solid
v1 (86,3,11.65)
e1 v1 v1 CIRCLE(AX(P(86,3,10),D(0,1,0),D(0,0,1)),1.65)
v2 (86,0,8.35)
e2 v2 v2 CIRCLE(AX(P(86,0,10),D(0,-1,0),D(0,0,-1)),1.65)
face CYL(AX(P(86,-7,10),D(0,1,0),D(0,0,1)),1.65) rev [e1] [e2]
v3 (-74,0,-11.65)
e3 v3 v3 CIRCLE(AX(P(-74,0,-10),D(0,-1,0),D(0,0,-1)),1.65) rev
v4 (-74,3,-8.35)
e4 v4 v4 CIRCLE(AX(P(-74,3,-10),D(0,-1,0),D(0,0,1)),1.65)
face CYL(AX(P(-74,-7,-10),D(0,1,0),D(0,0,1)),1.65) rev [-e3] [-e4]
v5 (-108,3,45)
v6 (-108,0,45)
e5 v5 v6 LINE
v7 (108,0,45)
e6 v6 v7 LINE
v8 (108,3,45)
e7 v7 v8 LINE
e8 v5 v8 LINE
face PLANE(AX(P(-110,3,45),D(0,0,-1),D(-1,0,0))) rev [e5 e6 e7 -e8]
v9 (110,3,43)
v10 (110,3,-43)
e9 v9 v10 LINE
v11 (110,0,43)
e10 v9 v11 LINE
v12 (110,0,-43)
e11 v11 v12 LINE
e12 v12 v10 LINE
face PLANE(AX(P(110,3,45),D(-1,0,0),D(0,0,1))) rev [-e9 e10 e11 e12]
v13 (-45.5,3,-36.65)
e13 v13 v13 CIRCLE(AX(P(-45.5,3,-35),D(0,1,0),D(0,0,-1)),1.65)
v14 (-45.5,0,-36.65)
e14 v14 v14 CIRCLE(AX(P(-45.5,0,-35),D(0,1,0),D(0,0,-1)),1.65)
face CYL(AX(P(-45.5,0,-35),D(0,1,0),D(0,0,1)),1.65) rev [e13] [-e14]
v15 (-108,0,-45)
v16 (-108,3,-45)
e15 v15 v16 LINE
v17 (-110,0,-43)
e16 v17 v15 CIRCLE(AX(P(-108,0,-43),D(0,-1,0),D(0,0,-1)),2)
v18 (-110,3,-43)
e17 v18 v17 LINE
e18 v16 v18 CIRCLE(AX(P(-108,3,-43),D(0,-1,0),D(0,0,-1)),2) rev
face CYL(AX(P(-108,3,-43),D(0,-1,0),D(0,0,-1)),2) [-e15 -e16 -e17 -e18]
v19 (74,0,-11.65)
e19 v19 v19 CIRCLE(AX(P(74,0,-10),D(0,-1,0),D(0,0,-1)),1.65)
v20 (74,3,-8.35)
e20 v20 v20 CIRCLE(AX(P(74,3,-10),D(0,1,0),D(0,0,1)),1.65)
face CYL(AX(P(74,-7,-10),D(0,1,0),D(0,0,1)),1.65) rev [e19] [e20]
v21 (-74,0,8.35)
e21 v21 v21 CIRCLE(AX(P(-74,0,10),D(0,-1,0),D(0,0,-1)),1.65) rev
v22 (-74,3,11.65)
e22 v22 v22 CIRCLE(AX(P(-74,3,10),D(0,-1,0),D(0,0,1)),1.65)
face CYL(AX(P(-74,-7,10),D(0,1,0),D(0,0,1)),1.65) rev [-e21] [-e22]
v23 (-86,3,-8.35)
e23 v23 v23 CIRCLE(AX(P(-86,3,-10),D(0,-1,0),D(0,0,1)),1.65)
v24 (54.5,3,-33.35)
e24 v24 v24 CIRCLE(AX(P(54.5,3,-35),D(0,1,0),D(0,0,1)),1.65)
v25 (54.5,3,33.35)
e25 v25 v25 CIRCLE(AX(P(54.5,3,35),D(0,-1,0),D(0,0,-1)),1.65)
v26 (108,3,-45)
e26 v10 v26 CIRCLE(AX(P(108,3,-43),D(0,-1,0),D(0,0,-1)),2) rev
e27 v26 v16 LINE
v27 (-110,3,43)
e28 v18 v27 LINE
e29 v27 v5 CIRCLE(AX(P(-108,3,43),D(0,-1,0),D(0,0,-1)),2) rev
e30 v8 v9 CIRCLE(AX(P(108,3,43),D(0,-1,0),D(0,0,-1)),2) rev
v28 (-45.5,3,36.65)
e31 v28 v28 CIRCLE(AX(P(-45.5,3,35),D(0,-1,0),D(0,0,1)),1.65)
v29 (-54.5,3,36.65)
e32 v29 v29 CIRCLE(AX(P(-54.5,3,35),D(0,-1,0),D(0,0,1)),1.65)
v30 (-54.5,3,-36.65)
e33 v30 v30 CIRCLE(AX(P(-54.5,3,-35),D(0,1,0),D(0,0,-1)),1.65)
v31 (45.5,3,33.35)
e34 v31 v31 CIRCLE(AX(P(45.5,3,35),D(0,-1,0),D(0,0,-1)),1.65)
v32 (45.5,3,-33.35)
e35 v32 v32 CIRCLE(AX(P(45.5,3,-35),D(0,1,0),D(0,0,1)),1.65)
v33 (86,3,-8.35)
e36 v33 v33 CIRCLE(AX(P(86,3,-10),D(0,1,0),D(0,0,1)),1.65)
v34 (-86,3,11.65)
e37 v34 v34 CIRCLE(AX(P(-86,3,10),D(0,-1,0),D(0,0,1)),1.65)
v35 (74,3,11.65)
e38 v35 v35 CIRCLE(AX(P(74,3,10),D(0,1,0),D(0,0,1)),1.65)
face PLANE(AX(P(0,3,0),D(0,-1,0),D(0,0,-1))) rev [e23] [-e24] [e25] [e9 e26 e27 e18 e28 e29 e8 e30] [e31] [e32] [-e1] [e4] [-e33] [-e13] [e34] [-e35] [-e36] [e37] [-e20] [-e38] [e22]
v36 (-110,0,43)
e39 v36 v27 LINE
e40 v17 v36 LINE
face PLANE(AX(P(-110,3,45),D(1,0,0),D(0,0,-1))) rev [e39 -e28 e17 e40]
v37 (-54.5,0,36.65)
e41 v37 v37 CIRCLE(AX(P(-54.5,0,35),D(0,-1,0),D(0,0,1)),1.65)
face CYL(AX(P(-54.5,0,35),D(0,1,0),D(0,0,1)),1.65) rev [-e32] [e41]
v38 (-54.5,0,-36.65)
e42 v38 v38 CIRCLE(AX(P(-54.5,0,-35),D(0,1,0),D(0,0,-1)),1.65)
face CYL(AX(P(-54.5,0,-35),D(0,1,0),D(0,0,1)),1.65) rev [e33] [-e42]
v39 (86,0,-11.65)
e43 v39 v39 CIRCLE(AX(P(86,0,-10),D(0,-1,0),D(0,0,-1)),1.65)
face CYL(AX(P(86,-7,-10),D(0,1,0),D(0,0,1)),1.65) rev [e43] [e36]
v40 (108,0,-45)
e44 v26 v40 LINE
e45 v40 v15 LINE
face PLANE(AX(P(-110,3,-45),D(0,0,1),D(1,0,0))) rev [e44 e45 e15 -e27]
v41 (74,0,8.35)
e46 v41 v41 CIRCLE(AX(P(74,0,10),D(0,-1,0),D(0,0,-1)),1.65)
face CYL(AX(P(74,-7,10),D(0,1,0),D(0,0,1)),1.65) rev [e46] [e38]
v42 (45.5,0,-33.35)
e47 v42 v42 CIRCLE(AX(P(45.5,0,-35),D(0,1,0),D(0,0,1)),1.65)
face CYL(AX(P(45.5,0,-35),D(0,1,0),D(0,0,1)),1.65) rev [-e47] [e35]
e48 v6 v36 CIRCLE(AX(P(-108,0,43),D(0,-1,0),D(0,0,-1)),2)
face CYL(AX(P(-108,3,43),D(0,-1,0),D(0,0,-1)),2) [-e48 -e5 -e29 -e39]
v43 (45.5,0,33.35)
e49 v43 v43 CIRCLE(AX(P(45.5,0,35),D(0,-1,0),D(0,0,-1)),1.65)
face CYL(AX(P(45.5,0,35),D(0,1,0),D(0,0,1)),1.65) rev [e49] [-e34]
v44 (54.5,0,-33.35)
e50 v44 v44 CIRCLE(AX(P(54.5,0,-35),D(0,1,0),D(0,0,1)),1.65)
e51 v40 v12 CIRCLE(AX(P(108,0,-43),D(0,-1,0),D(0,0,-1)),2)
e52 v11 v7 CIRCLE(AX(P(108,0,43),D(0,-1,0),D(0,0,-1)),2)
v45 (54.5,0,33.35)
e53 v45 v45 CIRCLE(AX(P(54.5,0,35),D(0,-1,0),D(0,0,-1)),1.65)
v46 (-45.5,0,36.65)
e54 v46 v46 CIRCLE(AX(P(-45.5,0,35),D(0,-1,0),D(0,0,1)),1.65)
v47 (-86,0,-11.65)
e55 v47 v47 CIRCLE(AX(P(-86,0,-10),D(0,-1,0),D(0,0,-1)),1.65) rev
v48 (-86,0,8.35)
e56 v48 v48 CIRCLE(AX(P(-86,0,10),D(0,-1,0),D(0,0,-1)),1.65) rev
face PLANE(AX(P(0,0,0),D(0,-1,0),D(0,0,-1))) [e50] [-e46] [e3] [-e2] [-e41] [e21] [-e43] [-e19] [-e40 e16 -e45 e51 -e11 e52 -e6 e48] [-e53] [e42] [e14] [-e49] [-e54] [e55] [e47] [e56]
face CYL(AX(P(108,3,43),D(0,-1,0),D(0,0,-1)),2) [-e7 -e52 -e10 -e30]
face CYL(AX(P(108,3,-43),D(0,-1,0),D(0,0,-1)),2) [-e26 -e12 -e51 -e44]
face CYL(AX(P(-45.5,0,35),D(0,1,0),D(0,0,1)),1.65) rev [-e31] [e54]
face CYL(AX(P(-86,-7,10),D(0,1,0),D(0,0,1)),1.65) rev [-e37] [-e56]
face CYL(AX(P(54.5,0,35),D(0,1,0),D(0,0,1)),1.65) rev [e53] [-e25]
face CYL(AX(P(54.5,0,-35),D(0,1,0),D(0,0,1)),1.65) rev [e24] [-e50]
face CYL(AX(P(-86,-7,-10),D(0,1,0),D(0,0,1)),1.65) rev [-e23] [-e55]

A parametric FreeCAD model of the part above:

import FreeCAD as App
import Part
import Sketcher


def edges_at(feature, points):
    """Names of the edges that pass closest to the given points."""
    edges = feature.Shape.Edges
    near = lambda p: min(range(len(edges)), key=lambda i: edges[i].distToShape(Part.Vertex(*p))[0])
    return sorted({f"Edge{near(p) + 1}" for p in points})

doc = App.newDocument("Part")
body = doc.addObject("PartDesign::Body", "Body")

# Sketch on XZ plane
sketch1 = body.newObject("Sketcher::SketchObject", "Sketch")
sketch1.AttachmentSupport = (doc.getObject("XZ_Plane"), [""])
sketch1.MapMode = "FlatFace"
sketch1.addGeometry([
    Part.LineSegment(App.Vector(-110, -45, 0), App.Vector(-110, 45, 0)),
    Part.LineSegment(App.Vector(-110, 45, 0), App.Vector(110, 45, 0)),
    Part.LineSegment(App.Vector(110, 45, 0), App.Vector(110, -45, 0)),
    Part.LineSegment(App.Vector(110, -45, 0), App.Vector(-110, -45, 0)),
], False)
sketch1.addConstraint([
    Sketcher.Constraint("Coincident", 0, 2, 1, 1),
    Sketcher.Constraint("Coincident", 1, 2, 2, 1),
    Sketcher.Constraint("Coincident", 2, 2, 3, 1),
    Sketcher.Constraint("Coincident", 3, 2, 0, 1),
    Sketcher.Constraint("Vertical", 0),
    Sketcher.Constraint("Horizontal", 1),
    Sketcher.Constraint("Vertical", 2),
    Sketcher.Constraint("Horizontal", 3),
    Sketcher.Constraint("Symmetric", 0, 2, 2, 2, -1, 1),
    Sketcher.Constraint("DistanceX", 1, 1, 1, 2, 220.0),
    Sketcher.Constraint("DistanceY", 0, 1, 0, 2, 90.0),
])
pad1 = body.newObject("PartDesign::Pad", "Pad")
pad1.Profile = sketch1
pad1.Length = 3
pad1.Reversed = True

# Sketch on XZ plane
sketch2 = body.newObject("Sketcher::SketchObject", "Sketch001")
sketch2.AttachmentSupport = (doc.getObject("XZ_Plane"), [""])
sketch2.MapMode = "FlatFace"
sketch2.AttachmentOffset = App.Placement(App.Vector(0, 0, -3), App.Rotation())
sketch2.addGeometry([
    Part.Circle(App.Vector(54.5, -35, 0), App.Vector(0, 0, 1), 1.65),
    Part.Circle(App.Vector(45.5, -35, 0), App.Vector(0, 0, 1), 1.65),
    Part.Circle(App.Vector(-54.5, -35, 0), App.Vector(0, 0, 1), 1.65),
    Part.Circle(App.Vector(-45.5, -35, 0), App.Vector(0, 0, 1), 1.65),
], False)
sketch2.addConstraint([
    Sketcher.Constraint("Equal", 0, 1),
    Sketcher.Constraint("Equal", 1, 2),
    Sketcher.Constraint("Equal", 2, 3),
    Sketcher.Constraint("Symmetric", 0, 3, 2, 3, -2),
    Sketcher.Constraint("Symmetric", 1, 3, 3, 3, -2),
    Sketcher.Constraint("Horizontal", 0, 3, 1, 3),
    Sketcher.Constraint("Diameter", 0, 3.3),
    Sketcher.Constraint("DistanceY", 0, 3, -1, 1, 35.0),
    Sketcher.Constraint("DistanceX", 1, 3, 0, 3, 9.0),
    Sketcher.Constraint("DistanceX", 2, 3, 1, 3, 100.0),
])
pocket1 = body.newObject("PartDesign::Pocket", "Pocket")
pocket1.Profile = sketch2
pocket1.Length = 3
pocket1.Reversed = True
doc.recompute()

mirrored = body.newObject("PartDesign::Mirrored", "Mirrored")
mirrored.Originals = [pocket1]
mirrored.MirrorPlane = (doc.getObject("XY_Plane"), [""])
body.Tip = mirrored
doc.recompute()

fillet = body.newObject("PartDesign::Fillet", "Fillet")
fillet.Base = (mirrored, edges_at(mirrored, [
    (110, 1.5, 45),
    (-110, 1.5, 45),
    (-110, 1.5, -45),
    (110, 1.5, -45),
]))
fillet.Radius = 2

# Sketch on XZ plane
sketch3 = body.newObject("Sketcher::SketchObject", "Sketch002")
sketch3.AttachmentSupport = (doc.getObject("XZ_Plane"), [""])
sketch3.MapMode = "FlatFace"
sketch3.AttachmentOffset = App.Placement(App.Vector(0, 0, -3), App.Rotation())
sketch3.addGeometry([
    Part.Circle(App.Vector(86, -10, 0), App.Vector(0, 0, 1), 1.65),
    Part.Circle(App.Vector(74, -10, 0), App.Vector(0, 0, 1), 1.65),
    Part.Circle(App.Vector(74, 10, 0), App.Vector(0, 0, 1), 1.65),
    Part.Circle(App.Vector(86, 10, 0), App.Vector(0, 0, 1), 1.65),
], False)
sketch3.addConstraint([
    Sketcher.Constraint("Equal", 0, 1),
    Sketcher.Constraint("Equal", 1, 2),
    Sketcher.Constraint("Equal", 2, 3),
    Sketcher.Constraint("Symmetric", 1, 3, 2, 3, -1),
    Sketcher.Constraint("Symmetric", 0, 3, 3, 3, -1),
    Sketcher.Constraint("Horizontal", 0, 3, 1, 3),
    Sketcher.Constraint("Diameter", 0, 3.3),
    Sketcher.Constraint("DistanceX", -1, 1, 0, 3, 86.0),
    Sketcher.Constraint("DistanceY", 0, 3, -1, 1, 10.0),
    Sketcher.Constraint("DistanceX", -1, 1, 1, 3, 74.0),
])
pocket2 = body.newObject("PartDesign::Pocket", "Pocket001")
pocket2.Profile = sketch3
pocket2.Length = 10
pocket2.Reversed = True
doc.recompute()

mirrored2 = body.newObject("PartDesign::Mirrored", "Mirrored001")
mirrored2.Originals = [pocket2]
mirrored2.MirrorPlane = (doc.getObject("YZ_Plane"), [""])
body.Tip = mirrored2

doc.recompute()
